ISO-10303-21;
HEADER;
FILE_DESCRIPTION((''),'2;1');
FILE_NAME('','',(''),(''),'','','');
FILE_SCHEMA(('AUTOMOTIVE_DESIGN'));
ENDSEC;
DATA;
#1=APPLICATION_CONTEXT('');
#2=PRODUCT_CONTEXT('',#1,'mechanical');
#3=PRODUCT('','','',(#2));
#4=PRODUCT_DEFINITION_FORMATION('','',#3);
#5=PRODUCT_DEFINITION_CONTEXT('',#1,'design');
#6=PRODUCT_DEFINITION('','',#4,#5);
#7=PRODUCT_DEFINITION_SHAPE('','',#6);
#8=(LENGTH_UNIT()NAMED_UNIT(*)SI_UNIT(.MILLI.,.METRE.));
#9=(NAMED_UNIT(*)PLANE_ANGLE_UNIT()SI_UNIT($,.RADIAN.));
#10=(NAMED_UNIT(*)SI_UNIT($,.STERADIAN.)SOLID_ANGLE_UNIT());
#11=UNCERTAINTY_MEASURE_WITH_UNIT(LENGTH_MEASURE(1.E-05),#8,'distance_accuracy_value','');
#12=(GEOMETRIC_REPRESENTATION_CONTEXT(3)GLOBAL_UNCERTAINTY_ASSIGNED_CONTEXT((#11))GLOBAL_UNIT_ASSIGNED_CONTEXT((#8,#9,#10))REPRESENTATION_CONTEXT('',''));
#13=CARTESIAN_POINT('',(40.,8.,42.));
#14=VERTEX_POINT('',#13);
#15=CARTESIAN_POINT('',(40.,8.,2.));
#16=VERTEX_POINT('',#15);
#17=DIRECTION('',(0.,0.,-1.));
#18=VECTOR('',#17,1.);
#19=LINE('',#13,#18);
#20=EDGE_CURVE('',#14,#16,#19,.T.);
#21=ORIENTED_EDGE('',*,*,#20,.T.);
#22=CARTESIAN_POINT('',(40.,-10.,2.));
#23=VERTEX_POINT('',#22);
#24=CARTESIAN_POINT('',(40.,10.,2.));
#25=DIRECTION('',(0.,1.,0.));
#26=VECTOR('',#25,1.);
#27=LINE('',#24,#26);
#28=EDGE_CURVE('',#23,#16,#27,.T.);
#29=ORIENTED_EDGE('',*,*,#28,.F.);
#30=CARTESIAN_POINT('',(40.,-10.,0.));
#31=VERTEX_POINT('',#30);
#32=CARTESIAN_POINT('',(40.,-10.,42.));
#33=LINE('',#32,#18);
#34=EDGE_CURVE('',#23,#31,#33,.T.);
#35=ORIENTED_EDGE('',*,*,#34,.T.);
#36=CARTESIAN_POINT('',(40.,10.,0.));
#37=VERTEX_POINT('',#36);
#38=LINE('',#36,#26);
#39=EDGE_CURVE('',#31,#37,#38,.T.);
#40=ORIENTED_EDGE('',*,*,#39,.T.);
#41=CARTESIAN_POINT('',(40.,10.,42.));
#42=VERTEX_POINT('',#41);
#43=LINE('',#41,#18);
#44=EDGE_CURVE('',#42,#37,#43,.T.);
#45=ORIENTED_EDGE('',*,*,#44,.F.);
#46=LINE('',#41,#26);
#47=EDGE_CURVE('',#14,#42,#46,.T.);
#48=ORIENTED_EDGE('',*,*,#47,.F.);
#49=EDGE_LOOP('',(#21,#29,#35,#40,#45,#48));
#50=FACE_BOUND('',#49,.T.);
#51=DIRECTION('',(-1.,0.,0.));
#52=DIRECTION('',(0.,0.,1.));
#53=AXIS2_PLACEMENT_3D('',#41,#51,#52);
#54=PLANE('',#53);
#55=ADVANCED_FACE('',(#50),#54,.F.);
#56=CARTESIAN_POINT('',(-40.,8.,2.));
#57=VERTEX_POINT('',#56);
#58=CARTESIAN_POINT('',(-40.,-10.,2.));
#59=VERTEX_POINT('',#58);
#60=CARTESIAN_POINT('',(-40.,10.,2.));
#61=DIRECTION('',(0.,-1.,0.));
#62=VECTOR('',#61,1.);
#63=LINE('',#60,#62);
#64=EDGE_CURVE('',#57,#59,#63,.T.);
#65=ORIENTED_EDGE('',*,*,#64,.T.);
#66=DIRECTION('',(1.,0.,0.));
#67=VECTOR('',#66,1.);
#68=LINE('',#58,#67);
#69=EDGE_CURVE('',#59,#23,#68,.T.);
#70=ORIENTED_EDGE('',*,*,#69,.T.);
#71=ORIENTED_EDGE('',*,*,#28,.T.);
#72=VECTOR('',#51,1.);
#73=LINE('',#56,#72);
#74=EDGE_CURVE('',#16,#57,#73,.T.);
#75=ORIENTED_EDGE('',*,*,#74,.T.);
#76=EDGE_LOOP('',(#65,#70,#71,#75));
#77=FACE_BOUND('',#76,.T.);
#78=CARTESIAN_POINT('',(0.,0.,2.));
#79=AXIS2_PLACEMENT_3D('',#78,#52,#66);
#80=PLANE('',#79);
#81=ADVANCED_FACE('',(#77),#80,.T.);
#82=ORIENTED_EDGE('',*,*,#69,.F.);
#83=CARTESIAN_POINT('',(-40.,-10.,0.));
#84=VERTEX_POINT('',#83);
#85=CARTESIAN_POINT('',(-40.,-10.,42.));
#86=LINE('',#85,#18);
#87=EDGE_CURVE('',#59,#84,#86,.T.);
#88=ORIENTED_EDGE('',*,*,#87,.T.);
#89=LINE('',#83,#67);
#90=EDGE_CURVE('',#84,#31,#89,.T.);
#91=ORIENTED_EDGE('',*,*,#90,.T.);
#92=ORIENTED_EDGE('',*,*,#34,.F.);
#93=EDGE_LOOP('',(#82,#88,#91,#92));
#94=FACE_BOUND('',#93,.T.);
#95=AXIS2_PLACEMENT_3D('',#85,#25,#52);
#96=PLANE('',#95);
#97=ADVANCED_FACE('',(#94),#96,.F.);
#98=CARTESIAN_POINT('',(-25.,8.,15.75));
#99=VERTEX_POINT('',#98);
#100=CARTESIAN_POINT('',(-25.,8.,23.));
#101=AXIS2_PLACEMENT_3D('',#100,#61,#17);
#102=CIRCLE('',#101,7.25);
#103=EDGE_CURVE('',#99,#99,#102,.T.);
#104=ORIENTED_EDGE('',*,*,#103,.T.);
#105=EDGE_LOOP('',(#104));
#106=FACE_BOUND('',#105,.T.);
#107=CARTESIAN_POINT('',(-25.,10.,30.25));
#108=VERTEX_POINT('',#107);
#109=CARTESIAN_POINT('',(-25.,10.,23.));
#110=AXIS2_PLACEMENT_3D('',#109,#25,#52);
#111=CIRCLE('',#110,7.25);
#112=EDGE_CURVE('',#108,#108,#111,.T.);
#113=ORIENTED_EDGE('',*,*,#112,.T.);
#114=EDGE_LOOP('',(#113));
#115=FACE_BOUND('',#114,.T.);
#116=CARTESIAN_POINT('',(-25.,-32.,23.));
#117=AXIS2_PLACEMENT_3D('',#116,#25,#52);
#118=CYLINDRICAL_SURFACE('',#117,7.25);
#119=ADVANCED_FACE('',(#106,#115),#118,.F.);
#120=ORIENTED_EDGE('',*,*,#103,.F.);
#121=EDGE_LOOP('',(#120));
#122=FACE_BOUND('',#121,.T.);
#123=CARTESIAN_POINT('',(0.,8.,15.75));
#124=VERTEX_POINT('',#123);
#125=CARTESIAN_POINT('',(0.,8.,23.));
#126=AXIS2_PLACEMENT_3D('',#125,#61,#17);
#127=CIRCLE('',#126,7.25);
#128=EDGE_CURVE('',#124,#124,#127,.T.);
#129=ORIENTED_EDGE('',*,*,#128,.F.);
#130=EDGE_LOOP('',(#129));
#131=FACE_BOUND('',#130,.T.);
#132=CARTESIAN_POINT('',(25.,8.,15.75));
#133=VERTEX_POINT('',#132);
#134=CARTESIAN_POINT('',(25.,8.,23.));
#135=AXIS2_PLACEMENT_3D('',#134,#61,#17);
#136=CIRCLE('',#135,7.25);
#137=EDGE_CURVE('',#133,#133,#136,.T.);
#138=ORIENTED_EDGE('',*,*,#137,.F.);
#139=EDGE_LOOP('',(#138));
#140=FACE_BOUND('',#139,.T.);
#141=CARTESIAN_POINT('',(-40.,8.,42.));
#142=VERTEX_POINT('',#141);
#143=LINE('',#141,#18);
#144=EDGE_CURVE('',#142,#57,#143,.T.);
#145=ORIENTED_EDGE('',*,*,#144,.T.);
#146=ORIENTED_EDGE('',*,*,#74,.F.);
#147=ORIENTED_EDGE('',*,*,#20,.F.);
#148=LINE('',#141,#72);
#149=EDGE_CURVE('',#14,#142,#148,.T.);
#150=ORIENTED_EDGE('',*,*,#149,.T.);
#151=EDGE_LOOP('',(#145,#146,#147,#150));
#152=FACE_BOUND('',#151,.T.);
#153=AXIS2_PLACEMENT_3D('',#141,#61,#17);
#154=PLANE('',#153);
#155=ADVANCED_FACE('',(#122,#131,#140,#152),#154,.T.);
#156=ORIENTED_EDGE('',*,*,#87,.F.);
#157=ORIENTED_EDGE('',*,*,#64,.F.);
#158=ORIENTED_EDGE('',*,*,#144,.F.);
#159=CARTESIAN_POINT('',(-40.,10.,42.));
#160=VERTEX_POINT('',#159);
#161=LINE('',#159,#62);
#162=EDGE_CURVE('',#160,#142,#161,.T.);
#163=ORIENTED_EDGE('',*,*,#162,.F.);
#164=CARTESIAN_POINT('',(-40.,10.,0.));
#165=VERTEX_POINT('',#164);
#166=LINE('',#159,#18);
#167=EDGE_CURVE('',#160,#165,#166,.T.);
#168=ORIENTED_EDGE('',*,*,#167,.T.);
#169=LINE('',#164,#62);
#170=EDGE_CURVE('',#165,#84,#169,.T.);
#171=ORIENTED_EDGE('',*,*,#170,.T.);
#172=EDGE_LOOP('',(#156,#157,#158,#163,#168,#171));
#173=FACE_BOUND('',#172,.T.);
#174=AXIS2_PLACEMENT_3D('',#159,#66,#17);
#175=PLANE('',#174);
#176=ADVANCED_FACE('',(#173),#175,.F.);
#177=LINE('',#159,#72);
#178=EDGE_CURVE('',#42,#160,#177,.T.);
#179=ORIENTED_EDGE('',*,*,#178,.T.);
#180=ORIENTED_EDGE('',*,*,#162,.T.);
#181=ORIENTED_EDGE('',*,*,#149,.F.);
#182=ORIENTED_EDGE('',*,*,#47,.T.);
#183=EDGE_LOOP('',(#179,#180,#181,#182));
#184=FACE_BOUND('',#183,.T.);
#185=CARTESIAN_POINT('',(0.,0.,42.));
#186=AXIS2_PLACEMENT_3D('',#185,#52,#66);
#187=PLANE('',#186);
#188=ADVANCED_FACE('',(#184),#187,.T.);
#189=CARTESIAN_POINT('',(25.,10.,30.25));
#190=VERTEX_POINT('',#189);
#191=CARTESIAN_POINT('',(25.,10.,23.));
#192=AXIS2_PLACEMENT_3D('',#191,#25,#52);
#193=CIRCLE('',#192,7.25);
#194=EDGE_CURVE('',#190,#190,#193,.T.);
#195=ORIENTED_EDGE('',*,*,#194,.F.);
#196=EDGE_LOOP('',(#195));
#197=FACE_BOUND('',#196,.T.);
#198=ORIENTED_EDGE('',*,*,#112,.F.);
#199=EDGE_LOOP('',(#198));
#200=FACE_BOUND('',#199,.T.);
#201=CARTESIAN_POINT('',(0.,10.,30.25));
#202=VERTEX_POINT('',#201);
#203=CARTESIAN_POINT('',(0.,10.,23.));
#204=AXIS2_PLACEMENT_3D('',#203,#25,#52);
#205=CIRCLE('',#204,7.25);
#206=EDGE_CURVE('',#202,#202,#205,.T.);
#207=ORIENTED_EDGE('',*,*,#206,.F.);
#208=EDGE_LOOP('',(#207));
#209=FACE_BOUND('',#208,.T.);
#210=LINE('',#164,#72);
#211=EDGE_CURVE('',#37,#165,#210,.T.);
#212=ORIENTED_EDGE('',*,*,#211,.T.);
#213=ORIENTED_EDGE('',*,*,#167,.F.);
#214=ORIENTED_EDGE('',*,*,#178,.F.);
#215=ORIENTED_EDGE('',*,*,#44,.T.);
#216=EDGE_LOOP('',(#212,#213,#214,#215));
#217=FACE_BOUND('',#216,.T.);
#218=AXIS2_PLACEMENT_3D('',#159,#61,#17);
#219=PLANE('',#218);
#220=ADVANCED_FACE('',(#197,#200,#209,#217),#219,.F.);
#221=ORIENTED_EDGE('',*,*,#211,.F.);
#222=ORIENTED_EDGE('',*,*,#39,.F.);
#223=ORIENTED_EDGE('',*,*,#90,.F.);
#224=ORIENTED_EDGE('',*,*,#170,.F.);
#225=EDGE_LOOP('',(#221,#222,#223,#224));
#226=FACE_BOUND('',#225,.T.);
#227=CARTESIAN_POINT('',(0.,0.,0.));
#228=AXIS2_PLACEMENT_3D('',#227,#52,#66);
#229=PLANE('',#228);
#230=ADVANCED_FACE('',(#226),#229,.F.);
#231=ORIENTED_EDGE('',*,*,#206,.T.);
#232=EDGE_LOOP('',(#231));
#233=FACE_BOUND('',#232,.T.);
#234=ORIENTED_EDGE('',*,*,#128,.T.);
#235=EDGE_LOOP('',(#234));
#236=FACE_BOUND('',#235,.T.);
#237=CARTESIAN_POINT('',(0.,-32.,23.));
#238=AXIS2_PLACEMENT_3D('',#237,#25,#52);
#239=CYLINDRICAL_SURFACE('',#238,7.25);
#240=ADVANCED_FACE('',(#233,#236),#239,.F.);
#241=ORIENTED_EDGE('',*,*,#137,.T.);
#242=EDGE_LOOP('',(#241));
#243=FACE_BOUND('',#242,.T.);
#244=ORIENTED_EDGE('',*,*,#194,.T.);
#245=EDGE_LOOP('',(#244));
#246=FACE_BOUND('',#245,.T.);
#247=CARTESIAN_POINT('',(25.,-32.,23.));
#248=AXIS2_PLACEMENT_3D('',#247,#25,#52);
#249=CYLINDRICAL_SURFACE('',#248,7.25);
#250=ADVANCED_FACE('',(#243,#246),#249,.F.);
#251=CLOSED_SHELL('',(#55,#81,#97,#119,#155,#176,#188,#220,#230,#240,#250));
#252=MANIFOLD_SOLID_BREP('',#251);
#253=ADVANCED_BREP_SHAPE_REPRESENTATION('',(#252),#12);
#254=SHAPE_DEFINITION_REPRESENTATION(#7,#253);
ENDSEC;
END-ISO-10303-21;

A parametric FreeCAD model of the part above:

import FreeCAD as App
import Part
import Sketcher

V = App.Vector


def faces_at(feature, points):
    """Names of the faces that lie closest to the given points."""
    faces = feature.Shape.Faces
    near = lambda p: min(range(len(faces)), key=lambda i: faces[i].distToShape(Part.Vertex(*p))[0])
    return sorted({f"Face{near(p) + 1}" for p in points})


def add_polygon(sketch, points):
    """Adds a closed chain of lines whose ends are joined by coincident constraints."""
    first, n = sketch.GeometryCount, len(points)
    for a, b in zip(points, points[1:] + points[:1]):
        sketch.addGeometry(Part.LineSegment(App.Vector(*a, 0), App.Vector(*b, 0)), False)
    for i in range(n):
        sketch.addConstraint(Sketcher.Constraint("Coincident", first + i, 2, first + (i + 1) % n, 1))

doc = App.newDocument("Part")
body = doc.addObject("PartDesign::Body", "Body")

# Sketch on XY plane
sketch1 = body.newObject("Sketcher::SketchObject", "Sketch")
sketch1.AttachmentSupport = (doc.getObject("XY_Plane"), [""])
sketch1.MapMode = "FlatFace"
add_polygon(sketch1, [(-40, 10), (-40, -10), (40, -10), (40, 10)])  # lines 0-3
sketch1.addConstraint(Sketcher.Constraint("Vertical", 0))
sketch1.addConstraint(Sketcher.Constraint("Horizontal", 1))
sketch1.addConstraint(Sketcher.Constraint("Vertical", 2))
sketch1.addConstraint(Sketcher.Constraint("Horizontal", 3))
sketch1.addConstraint(Sketcher.Constraint("Symmetric", 0, 2, 2, 2, -1, 1))
sketch1.addConstraint(Sketcher.Constraint("DistanceX", 1, 1, 1, 2, 80.0))
sketch1.addConstraint(Sketcher.Constraint("DistanceY", 0, 2, 0, 1, 20.0))
pad1 = body.newObject("PartDesign::Pad", "Pad")
pad1.Profile = sketch1
pad1.Length = 42
doc.recompute()

thickness = body.newObject("PartDesign::Thickness", "Thickness")
thickness.Base = (pad1, faces_at(pad1, [
    (0, 0, 42),
    (0, -10, 21),
    (-40, 0, 21),
    (40, 0, 21),
]))
thickness.Value = 2
thickness.Reversed = True
thickness.Join = "Intersection"

# Sketch on XZ plane
sketch2 = body.newObject("Sketcher::SketchObject", "Sketch001")
sketch2.AttachmentSupport = (doc.getObject("XZ_Plane"), [""])
sketch2.MapMode = "FlatFace"
sketch2.AttachmentOffset = App.Placement(V(0, 0, -10), App.Rotation())
sketch2.addGeometry(Part.Circle(V(0, 23, 0), V(0, 0, 1), 7), False)
sketch2.addGeometry(Part.Circle(V(-25, 23, 0), V(0, 0, 1), 7), False)
sketch2.addGeometry(Part.Circle(V(25, 23, 0), V(0, 0, 1), 7), False)
sketch2.addConstraint(Sketcher.Constraint("Equal", 0, 1))
sketch2.addConstraint(Sketcher.Constraint("Equal", 1, 2))
sketch2.addConstraint(Sketcher.Constraint("Symmetric", 1, 3, 2, 3, -2))
sketch2.addConstraint(Sketcher.Constraint("PointOnObject", 0, 3, -2))
sketch2.addConstraint(Sketcher.Constraint("Horizontal", 0, 3, 1, 3))
sketch2.addConstraint(Sketcher.Constraint("Diameter", 0, 14.5))
sketch2.addConstraint(Sketcher.Constraint("DistanceY", -1, 1, 0, 3, 23.0))
sketch2.addConstraint(Sketcher.Constraint("DistanceX", 1, 3, -1, 1, 25.0))
pocket1 = body.newObject("PartDesign::Pocket", "Pocket")
pocket1.Profile = sketch2
pocket1.Length = 42
pocket1.Reversed = True

doc.recompute()
